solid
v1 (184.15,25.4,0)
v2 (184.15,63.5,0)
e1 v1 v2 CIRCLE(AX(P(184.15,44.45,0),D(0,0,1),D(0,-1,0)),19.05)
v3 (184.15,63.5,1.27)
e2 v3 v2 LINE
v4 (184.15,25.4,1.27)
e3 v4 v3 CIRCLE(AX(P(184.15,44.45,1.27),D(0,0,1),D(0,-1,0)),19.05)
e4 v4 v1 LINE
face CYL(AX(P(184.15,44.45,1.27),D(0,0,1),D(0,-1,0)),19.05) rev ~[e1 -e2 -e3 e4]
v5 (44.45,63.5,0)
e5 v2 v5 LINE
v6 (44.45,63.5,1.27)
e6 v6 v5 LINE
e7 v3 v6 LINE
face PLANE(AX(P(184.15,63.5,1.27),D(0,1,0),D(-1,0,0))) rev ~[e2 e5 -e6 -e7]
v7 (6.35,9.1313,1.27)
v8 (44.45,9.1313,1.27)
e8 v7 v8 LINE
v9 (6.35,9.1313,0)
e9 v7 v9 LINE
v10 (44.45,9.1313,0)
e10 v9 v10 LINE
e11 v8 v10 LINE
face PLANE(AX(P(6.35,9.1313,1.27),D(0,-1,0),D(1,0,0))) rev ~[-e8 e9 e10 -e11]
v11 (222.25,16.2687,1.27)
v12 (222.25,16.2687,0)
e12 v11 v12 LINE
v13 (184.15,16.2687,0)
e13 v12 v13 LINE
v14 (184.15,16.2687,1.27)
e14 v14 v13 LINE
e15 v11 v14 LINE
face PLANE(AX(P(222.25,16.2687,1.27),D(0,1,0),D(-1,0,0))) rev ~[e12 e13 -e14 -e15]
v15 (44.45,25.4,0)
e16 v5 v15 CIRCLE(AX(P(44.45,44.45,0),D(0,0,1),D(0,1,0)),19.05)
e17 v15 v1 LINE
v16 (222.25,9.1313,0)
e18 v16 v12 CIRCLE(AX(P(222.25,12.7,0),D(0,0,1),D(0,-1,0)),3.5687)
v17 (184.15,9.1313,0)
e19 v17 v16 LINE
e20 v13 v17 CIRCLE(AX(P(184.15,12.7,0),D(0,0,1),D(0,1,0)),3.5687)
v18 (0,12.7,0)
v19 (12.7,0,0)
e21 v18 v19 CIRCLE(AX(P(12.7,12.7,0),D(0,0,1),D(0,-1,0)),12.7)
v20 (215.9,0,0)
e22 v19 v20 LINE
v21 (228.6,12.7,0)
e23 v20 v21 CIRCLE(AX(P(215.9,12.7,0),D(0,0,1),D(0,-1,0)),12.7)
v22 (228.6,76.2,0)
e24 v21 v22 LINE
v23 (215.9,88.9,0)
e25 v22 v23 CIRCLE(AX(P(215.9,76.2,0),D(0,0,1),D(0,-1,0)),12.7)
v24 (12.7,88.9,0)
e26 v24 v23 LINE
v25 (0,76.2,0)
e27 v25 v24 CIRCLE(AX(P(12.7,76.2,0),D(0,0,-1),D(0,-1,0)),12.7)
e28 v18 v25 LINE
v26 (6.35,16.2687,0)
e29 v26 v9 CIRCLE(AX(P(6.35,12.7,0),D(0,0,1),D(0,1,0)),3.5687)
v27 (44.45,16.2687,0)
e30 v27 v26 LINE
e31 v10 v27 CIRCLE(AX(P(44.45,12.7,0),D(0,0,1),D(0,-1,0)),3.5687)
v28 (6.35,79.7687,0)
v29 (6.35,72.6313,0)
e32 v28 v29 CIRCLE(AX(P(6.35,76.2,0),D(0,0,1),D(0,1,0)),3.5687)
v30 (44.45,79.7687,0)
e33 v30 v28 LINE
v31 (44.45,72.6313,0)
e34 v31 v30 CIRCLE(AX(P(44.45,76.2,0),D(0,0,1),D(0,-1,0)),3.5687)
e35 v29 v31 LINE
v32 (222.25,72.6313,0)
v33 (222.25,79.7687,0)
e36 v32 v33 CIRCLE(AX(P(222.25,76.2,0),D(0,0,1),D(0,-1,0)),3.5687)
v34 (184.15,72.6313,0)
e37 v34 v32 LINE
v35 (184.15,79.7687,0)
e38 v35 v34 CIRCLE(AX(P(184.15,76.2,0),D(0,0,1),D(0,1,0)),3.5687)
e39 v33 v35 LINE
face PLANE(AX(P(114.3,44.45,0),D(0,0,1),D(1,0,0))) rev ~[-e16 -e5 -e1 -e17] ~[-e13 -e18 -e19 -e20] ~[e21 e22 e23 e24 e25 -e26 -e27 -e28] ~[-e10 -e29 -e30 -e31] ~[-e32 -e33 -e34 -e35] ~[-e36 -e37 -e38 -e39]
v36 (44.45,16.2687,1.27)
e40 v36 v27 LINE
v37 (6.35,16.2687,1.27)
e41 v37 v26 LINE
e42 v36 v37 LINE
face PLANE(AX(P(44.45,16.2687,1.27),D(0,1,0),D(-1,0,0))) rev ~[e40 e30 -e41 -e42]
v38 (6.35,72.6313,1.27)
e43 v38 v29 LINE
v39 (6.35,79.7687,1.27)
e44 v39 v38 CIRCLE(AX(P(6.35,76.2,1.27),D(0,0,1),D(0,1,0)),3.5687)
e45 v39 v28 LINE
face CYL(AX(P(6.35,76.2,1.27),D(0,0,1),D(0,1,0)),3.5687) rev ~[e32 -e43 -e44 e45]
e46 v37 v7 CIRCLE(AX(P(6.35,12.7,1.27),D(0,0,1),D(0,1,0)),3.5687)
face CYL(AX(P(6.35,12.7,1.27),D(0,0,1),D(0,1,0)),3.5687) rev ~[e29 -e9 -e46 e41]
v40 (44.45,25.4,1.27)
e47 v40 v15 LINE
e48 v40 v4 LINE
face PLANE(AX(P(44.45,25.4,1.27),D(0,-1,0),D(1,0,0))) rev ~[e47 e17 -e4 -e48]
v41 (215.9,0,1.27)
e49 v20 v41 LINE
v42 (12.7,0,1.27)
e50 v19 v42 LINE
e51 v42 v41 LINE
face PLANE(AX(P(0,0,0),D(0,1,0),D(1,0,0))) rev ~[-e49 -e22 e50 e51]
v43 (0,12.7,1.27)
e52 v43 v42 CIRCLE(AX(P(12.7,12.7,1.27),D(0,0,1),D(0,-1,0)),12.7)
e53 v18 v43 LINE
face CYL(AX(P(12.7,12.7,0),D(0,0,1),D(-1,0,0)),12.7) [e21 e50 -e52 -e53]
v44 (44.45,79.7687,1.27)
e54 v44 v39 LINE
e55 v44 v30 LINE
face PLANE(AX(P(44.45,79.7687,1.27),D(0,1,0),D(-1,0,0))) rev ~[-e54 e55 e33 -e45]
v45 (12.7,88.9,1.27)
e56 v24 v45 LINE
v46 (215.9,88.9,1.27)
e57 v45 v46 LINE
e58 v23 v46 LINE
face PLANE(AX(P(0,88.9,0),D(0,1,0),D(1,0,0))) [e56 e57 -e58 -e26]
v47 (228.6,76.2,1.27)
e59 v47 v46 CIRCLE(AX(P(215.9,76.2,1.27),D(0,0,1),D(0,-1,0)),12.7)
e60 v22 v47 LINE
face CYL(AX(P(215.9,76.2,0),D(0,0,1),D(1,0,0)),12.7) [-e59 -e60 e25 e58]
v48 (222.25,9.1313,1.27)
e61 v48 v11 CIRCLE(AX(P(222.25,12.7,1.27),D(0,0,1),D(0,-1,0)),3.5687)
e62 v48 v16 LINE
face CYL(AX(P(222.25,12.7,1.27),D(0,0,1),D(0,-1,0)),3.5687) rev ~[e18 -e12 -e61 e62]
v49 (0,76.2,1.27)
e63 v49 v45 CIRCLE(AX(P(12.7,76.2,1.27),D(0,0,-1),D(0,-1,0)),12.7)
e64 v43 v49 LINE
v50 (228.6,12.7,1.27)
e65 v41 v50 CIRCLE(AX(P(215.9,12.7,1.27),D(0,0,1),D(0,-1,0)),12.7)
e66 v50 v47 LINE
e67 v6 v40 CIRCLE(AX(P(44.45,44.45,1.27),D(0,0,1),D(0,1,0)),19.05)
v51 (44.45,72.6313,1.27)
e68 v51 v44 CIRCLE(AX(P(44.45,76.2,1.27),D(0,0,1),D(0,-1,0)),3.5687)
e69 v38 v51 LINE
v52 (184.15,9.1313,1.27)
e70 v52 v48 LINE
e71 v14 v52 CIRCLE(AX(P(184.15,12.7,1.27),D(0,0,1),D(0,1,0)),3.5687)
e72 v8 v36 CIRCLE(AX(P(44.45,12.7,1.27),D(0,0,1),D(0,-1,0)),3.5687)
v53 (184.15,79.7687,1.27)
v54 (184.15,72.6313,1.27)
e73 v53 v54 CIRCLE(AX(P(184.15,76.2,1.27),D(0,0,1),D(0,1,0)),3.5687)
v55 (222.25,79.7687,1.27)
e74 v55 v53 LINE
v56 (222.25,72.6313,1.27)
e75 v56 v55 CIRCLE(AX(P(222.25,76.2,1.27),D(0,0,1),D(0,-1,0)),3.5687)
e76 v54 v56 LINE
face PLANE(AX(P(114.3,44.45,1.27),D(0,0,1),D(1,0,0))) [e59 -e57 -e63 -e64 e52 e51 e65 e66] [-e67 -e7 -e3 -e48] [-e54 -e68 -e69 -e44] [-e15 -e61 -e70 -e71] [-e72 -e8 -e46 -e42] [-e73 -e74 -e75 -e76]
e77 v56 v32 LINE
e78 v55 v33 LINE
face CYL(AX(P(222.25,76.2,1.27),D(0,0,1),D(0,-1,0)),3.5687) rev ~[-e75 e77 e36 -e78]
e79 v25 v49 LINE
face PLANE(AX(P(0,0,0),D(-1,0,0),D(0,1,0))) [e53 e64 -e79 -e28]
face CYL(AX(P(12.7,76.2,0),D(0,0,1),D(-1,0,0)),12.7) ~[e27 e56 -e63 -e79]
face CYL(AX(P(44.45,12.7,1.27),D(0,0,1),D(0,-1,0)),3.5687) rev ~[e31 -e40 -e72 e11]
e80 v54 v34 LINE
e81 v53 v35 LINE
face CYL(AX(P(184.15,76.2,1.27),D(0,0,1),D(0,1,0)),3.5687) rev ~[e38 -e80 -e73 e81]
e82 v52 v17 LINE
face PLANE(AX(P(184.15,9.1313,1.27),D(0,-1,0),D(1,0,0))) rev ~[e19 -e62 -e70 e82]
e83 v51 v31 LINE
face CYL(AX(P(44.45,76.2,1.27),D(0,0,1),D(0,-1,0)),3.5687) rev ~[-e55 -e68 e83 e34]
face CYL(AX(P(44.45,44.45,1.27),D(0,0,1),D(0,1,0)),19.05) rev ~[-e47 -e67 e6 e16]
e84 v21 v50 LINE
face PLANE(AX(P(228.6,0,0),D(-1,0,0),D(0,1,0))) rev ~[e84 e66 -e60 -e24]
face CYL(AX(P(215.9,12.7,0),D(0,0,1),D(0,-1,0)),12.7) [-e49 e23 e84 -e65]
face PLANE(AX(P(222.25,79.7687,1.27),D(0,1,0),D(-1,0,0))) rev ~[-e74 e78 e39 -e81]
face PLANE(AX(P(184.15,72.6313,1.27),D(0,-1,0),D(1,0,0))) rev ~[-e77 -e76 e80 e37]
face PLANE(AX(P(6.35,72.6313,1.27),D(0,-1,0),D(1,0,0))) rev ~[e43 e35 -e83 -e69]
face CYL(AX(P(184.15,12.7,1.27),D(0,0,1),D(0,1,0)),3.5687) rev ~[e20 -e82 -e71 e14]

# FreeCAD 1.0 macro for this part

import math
import FreeCAD as App
import Part
import Sketcher
Q = App.Units.Quantity


def edges_at(feature, points):
    """Names of the edges that pass closest to the given points."""
    edges = feature.Shape.Edges
    near = lambda p: min(range(len(edges)), key=lambda i: edges[i].distToShape(Part.Vertex(*p))[0])
    return sorted({f"Edge{near(p) + 1}" for p in points})


def add_polygon(sketch, points):
    """Adds a closed chain of lines whose ends are joined by coincident constraints."""
    first, n = sketch.GeometryCount, len(points)
    for a, b in zip(points, points[1:] + points[:1]):
        sketch.addGeometry(Part.LineSegment(App.Vector(*a, 0), App.Vector(*b, 0)), False)
    for i in range(n):
        sketch.addConstraint(Sketcher.Constraint("Coincident", first + i, 2, first + (i + 1) % n, 1))

doc = App.newDocument("Part")
body = doc.addObject("PartDesign::Body", "Body")

sketch1 = body.newObject("Sketcher::SketchObject", "Sketch")
sketch1.AttachmentSupport = (doc.getObject("XY_Plane"), [""])
sketch1.MapMode = "FlatFace"
add_polygon(sketch1, [(0, 89), (0, 0), (229, 0), (229, 89)])
sketch1.addConstraint(Sketcher.Constraint("Vertical", 0))
sketch1.addConstraint(Sketcher.Constraint("Horizontal", 1))
sketch1.addConstraint(Sketcher.Constraint("Vertical", 2))
sketch1.addConstraint(Sketcher.Constraint("Horizontal", 3))
sketch1.addConstraint(Sketcher.Constraint("Coincident", 0, 2, -1, 1))
sketch1.addConstraint(Sketcher.Constraint("DistanceX", 1, 1, 1, 2, Q("9 in")))
sketch1.addConstraint(Sketcher.Constraint("DistanceY", 0, 2, 0, 1, Q("3.5 in")))
pad1 = body.newObject("PartDesign::Pad", "Pad")
pad1.Profile = sketch1
pad1.Length = Q("0.05 in")
doc.recompute()

fillet = body.newObject("PartDesign::Fillet", "Fillet")
fillet.Base = (pad1, edges_at(pad1, [
    (228.6, 0, 0.635),
    (228.6, 88.9, 0.635),
    (0, 88.9, 0.635),
    (0, 0, 0.635),
]))
fillet.Radius = Q("0.5 in")

sketch2 = body.newObject("Sketcher::SketchObject", "Sketch001")
sketch2.AttachmentSupport = (doc.getObject("XY_Plane"), [""])
sketch2.MapMode = "FlatFace"
sketch2.AttachmentOffset = App.Placement(App.Vector(0, 0, 0.05 * 25.4), App.Rotation())
sketch2.addGeometry(Part.LineSegment(App.Vector(44.5, 16.3, 0), App.Vector(6.3, 16.3, 0)), False)
sketch2.addGeometry(Part.ArcOfCircle(Part.Circle(App.Vector(6.3, 12.7, 0), App.Vector(0, 0, 1), 3.6), math.radians(90), math.radians(270)), False)
sketch2.addGeometry(Part.LineSegment(App.Vector(6.3, 9.1, 0), App.Vector(44.5, 9.1, 0)), False)
sketch2.addGeometry(Part.ArcOfCircle(Part.Circle(App.Vector(44.5, 12.7, 0), App.Vector(0, 0, 1), 3.6), math.radians(-90), math.radians(90)), False)
sketch2.addGeometry(Part.ArcOfCircle(Part.Circle(App.Vector(6.3, 76.2, 0), App.Vector(0, 0, 1), 3.6), math.radians(90), math.radians(270)), False)
sketch2.addGeometry(Part.LineSegment(App.Vector(6.3, 72.6, 0), App.Vector(44.5, 72.6, 0)), False)
sketch2.addGeometry(Part.ArcOfCircle(Part.Circle(App.Vector(44.5, 76.2, 0), App.Vector(0, 0, 1), 3.6), math.radians(-90), math.radians(90)), False)
sketch2.addGeometry(Part.LineSegment(App.Vector(44.5, 79.8, 0), App.Vector(6.3, 79.8, 0)), False)
sketch2.addGeometry(Part.ArcOfCircle(Part.Circle(App.Vector(222.2, 76.2, 0), App.Vector(0, 0, 1), 3.6), math.radians(-90), math.radians(90)), False)
sketch2.addGeometry(Part.LineSegment(App.Vector(222.2, 79.8, 0), App.Vector(184.2, 79.8, 0)), False)
sketch2.addGeometry(Part.ArcOfCircle(Part.Circle(App.Vector(184.2, 76.2, 0), App.Vector(0, 0, 1), 3.6), math.radians(90), math.radians(270)), False)
sketch2.addGeometry(Part.LineSegment(App.Vector(184.2, 72.6, 0), App.Vector(222.2, 72.6, 0)), False)
sketch2.addGeometry(Part.ArcOfCircle(Part.Circle(App.Vector(222.2, 12.7, 0), App.Vector(0, 0, 1), 3.6), math.radians(-90), math.radians(90)), False)
sketch2.addGeometry(Part.LineSegment(App.Vector(222.2, 16.3, 0), App.Vector(184.2, 16.3, 0)), False)
sketch2.addGeometry(Part.ArcOfCircle(Part.Circle(App.Vector(184.2, 12.7, 0), App.Vector(0, 0, 1), 3.6), math.radians(90), math.radians(270)), False)
sketch2.addGeometry(Part.LineSegment(App.Vector(184.2, 9.1, 0), App.Vector(222.2, 9.1, 0)), False)
sketch2.addConstraint(Sketcher.Constraint("Tangent", 0, 2, 1, 1))
sketch2.addConstraint(Sketcher.Constraint("Tangent", 1, 2, 2, 1))
sketch2.addConstraint(Sketcher.Constraint("Tangent", 2, 2, 3, 1))
sketch2.addConstraint(Sketcher.Constraint("Tangent", 3, 2, 0, 1))
sketch2.addConstraint(Sketcher.Constraint("Tangent", 4, 2, 5, 1))
sketch2.addConstraint(Sketcher.Constraint("Tangent", 5, 2, 6, 1))
sketch2.addConstraint(Sketcher.Constraint("Tangent", 6, 2, 7, 1))
sketch2.addConstraint(Sketcher.Constraint("Tangent", 7, 2, 4, 1))
sketch2.addConstraint(Sketcher.Constraint("Tangent", 8, 2, 9, 1))
sketch2.addConstraint(Sketcher.Constraint("Tangent", 9, 2, 10, 1))
sketch2.addConstraint(Sketcher.Constraint("Tangent", 10, 2, 11, 1))
sketch2.addConstraint(Sketcher.Constraint("Tangent", 11, 2, 8, 1))
sketch2.addConstraint(Sketcher.Constraint("Tangent", 12, 2, 13, 1))
sketch2.addConstraint(Sketcher.Constraint("Tangent", 13, 2, 14, 1))
sketch2.addConstraint(Sketcher.Constraint("Tangent", 14, 2, 15, 1))
sketch2.addConstraint(Sketcher.Constraint("Tangent", 15, 2, 12, 1))
sketch2.addConstraint(Sketcher.Constraint("Horizontal", 0))
sketch2.addConstraint(Sketcher.Constraint("Horizontal", 2))
sketch2.addConstraint(Sketcher.Constraint("Horizontal", 5))
sketch2.addConstraint(Sketcher.Constraint("Horizontal", 7))
sketch2.addConstraint(Sketcher.Constraint("Horizontal", 9))
sketch2.addConstraint(Sketcher.Constraint("Horizontal", 11))
sketch2.addConstraint(Sketcher.Constraint("Horizontal", 13))
sketch2.addConstraint(Sketcher.Constraint("Horizontal", 15))
sketch2.addConstraint(Sketcher.Constraint("Equal", 3, 4))
sketch2.addConstraint(Sketcher.Constraint("Equal", 6, 8))
sketch2.addConstraint(Sketcher.Constraint("Equal", 10, 12))
sketch2.addConstraint(Sketcher.Constraint("Horizontal", 6, 3, 8, 3))
sketch2.addConstraint(Sketcher.Constraint("Horizontal", 3, 3, 12, 3))
sketch2.addConstraint(Sketcher.Constraint("Vertical", 1, 3, 4, 3))
sketch2.addConstraint(Sketcher.Constraint("Vertical", 3, 3, 6, 3))
sketch2.addConstraint(Sketcher.Constraint("Vertical", 8, 3, 12, 3))
sketch2.addConstraint(Sketcher.Constraint("Vertical", 10, 3, 14, 3))
sketch2.addConstraint(Sketcher.Constraint("Equal", 7, 9))
sketch2.addConstraint(Sketcher.Constraint("DistanceX", 0, 2, 0, 1, Q("1.5 in")))
sketch2.addConstraint(Sketcher.Constraint("DistanceY", -1, 1, 4, 3, Q("3 in")))
sketch2.addConstraint(Sketcher.Constraint("DistanceX", 6, 3, 8, 3, Q("7 in")))
sketch2.addConstraint(Sketcher.Constraint("DistanceY", -1, 1, 1, 3, Q("0.5 in")))
sketch2.addConstraint(Sketcher.Constraint("Radius", 1, Q("0.1405 in")))
sketch2.addConstraint(Sketcher.Constraint("DistanceX", -1, 1, 1, 3, Q("0.25 in")))
pocket1 = body.newObject("PartDesign::Pocket", "Pocket")
pocket1.Profile = sketch2
pocket1.Length = Q("1 in")

sketch3 = body.newObject("Sketcher::SketchObject", "Sketch002")
sketch3.AttachmentSupport = (doc.getObject("XY_Plane"), [""])
sketch3.MapMode = "FlatFace"
sketch3.AttachmentOffset = App.Placement(App.Vector(0, 0, 0.05 * 25.4), App.Rotation())
sketch3.addGeometry(Part.ArcOfCircle(Part.Circle(App.Vector(44, 44, 0), App.Vector(0, 0, 1), 19), math.radians(90), math.radians(270)), False)
sketch3.addGeometry(Part.LineSegment(App.Vector(44, 25, 0), App.Vector(184, 25, 0)), False)
sketch3.addGeometry(Part.ArcOfCircle(Part.Circle(App.Vector(184, 44, 0), App.Vector(0, 0, 1), 19), math.radians(-90), math.radians(90)), False)
sketch3.addGeometry(Part.LineSegment(App.Vector(184, 64, 0), App.Vector(44, 64, 0)), False)
sketch3.addConstraint(Sketcher.Constraint("Tangent", 0, 2, 1, 1))
sketch3.addConstraint(Sketcher.Constraint("Tangent", 1, 2, 2, 1))
sketch3.addConstraint(Sketcher.Constraint("Tangent", 2, 2, 3, 1))
sketch3.addConstraint(Sketcher.Constraint("Tangent", 3, 2, 0, 1))
sketch3.addConstraint(Sketcher.Constraint("Horizontal", 1))
sketch3.addConstraint(Sketcher.Constraint("Horizontal", 3))
sketch3.addConstraint(Sketcher.Constraint("Radius", 0, Q("0.75 in")))
sketch3.addConstraint(Sketcher.Constraint("DistanceX", 1, 1, 1, 2, Q("5.5 in")))
sketch3.addConstraint(Sketcher.Constraint("DistanceY", -1, 1, 0, 2, Q("1 in")))
sketch3.addConstraint(Sketcher.Constraint("DistanceX", -1, 1, 0, 3, Q("1.75 in")))
pocket2 = body.newObject("PartDesign::Pocket", "Pocket001")
pocket2.Profile = sketch3
pocket2.Type = "ThroughAll"

doc.recompute()
